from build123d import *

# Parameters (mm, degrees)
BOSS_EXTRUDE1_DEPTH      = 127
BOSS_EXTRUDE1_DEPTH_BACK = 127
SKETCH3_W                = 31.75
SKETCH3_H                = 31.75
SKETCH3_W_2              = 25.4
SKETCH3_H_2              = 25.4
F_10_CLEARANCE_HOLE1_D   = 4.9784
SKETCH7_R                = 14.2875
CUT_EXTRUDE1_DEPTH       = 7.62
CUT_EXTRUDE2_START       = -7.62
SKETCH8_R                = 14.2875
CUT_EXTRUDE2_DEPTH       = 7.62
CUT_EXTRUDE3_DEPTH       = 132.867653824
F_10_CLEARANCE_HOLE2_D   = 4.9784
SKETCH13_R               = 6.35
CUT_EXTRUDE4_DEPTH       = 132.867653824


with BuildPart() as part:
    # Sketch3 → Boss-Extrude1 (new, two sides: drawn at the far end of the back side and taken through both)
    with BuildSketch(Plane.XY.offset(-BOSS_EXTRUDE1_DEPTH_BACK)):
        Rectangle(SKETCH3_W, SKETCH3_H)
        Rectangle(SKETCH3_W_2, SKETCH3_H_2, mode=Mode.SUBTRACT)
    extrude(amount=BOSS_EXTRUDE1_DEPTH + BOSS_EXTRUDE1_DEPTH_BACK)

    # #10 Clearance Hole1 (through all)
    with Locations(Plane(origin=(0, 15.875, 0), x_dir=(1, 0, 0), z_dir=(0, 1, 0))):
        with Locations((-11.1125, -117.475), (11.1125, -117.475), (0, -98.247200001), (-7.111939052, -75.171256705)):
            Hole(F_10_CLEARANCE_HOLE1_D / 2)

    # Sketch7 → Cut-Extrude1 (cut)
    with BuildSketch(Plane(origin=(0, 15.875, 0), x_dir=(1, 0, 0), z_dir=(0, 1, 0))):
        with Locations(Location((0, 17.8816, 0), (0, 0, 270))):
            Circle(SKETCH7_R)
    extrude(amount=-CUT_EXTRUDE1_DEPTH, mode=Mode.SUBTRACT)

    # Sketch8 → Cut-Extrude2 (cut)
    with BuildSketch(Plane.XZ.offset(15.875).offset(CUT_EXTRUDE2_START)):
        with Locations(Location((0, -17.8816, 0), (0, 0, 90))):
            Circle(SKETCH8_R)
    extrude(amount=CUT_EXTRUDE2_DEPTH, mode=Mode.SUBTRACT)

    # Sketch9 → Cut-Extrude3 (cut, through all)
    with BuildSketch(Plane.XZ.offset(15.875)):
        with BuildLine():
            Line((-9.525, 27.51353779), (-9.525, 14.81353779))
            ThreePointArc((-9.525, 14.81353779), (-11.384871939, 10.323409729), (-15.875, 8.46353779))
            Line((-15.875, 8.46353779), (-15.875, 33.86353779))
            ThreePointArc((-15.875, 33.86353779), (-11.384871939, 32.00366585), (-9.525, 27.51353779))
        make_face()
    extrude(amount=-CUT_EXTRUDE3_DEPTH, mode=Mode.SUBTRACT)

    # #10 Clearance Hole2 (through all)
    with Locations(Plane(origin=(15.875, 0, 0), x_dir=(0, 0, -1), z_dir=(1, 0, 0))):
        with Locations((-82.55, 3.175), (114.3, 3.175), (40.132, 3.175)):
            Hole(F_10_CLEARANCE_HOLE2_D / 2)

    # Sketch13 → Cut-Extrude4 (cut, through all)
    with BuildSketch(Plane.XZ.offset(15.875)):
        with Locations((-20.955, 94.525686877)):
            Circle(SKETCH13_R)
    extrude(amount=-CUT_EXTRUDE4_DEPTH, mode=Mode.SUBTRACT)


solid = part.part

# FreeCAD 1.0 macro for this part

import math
import FreeCAD as App
import Part
import Sketcher
from FreeCAD import Vector
Q = App.Units.Quantity


def add_polygon(sketch, points):
    """Adds a closed chain of lines whose ends are joined by coincident constraints."""
    first, n = sketch.GeometryCount, len(points)
    for a, b in zip(points, points[1:] + points[:1]):
        sketch.addGeometry(Part.LineSegment(App.Vector(*a, 0), App.Vector(*b, 0)), False)
    for i in range(n):
        sketch.addConstraint(Sketcher.Constraint("Coincident", first + i, 2, first + (i + 1) % n, 1))

doc = App.newDocument("Part")
body = doc.addObject("PartDesign::Body", "Body")

sketch1 = body.newObject("Sketcher::SketchObject", "Sketch")
sketch1.AttachmentSupport = (doc.getObject("XY_Plane"), [""])
sketch1.MapMode = "FlatFace"
add_polygon(sketch1, [(-16, 16), (-16, -16), (16, -16), (16, 16)])
add_polygon(sketch1, [(13, -13), (-13, -13), (-13, 13), (13, 13)])
sketch1.addConstraint(Sketcher.Constraint("Vertical", 0))
sketch1.addConstraint(Sketcher.Constraint("Horizontal", 1))
sketch1.addConstraint(Sketcher.Constraint("Vertical", 2))
sketch1.addConstraint(Sketcher.Constraint("Horizontal", 3))
sketch1.addConstraint(Sketcher.Constraint("Horizontal", 4))
sketch1.addConstraint(Sketcher.Constraint("Vertical", 5))
sketch1.addConstraint(Sketcher.Constraint("Horizontal", 6))
sketch1.addConstraint(Sketcher.Constraint("Vertical", 7))
sketch1.addConstraint(Sketcher.Constraint("Symmetric", 0, 2, 2, 2, -1, 1))
sketch1.addConstraint(Sketcher.Constraint("Symmetric", 4, 2, 6, 2, -1, 1))
sketch1.addConstraint(Sketcher.Constraint("Equal", 3, 0))
sketch1.addConstraint(Sketcher.Constraint("Equal", 6, 5))
sketch1.addConstraint(Sketcher.Constraint("DistanceX", 4, 2, 4, 1, Q("1 in")))
sketch1.addConstraint(Sketcher.Constraint("DistanceX", 1, 1, 1, 2, Q("1.25 in")))
pad1 = body.newObject("PartDesign::Pad", "Pad")
pad1.Profile = sketch1
pad1.Type = "TwoLengths"
pad1.Length = Q("5 in")
pad1.Length2 = Q("5 in")

sketch2 = body.newObject("Sketcher::SketchObject", "Sketch001")
sketch2.AttachmentSupport = (doc.getObject("XZ_Plane"), [""])
sketch2.MapMode = "FlatFace"
sketch2.AttachmentOffset = App.Placement(Vector(0, 0, -0.625 * 25.4), App.Rotation())
sketch2.addGeometry(Part.Circle(Vector(-11.1, 117.5, 0), Vector(0, 0, 1), 2.5), False)
sketch2.addGeometry(Part.Circle(Vector(11.1, 117.5, 0), Vector(0, 0, 1), 2.5), False)
sketch2.addGeometry(Part.Circle(Vector(0, 98.2, 0), Vector(0, 0, 1), 2.5), False)
sketch2.addGeometry(Part.Circle(Vector(-7.1, 75.2, 0), Vector(0, 0, 1), 2.5), False)
sketch2.addConstraint(Sketcher.Constraint("Equal", 0, 1))
sketch2.addConstraint(Sketcher.Constraint("Equal", 1, 2))
sketch2.addConstraint(Sketcher.Constraint("Equal", 2, 3))
sketch2.addConstraint(Sketcher.Constraint("Symmetric", 0, 3, 1, 3, -2))
sketch2.addConstraint(Sketcher.Constraint("PointOnObject", 2, 3, -2))
sketch2.addConstraint(Sketcher.Constraint("Diameter", 0, Q("0.196 in")))
sketch2.addConstraint(Sketcher.Constraint("DistanceX", 0, 3, -1, 1, Q("0.4375 in")))
sketch2.addConstraint(Sketcher.Constraint("DistanceY", -1, 1, 0, 3, Q("4.625 in")))
sketch2.addConstraint(Sketcher.Constraint("DistanceY", -1, 1, 2, 3, Q("3.868 in")))
sketch2.addConstraint(Sketcher.Constraint("DistanceX", 3, 3, -1, 1, 7.111939))
sketch2.addConstraint(Sketcher.Constraint("DistanceY", -1, 1, 3, 3, 75.171257))
doc.recompute()
hole = body.newObject("PartDesign::Hole", "Hole")
hole.Profile = sketch2
hole.ThreadType = "None"
hole.Diameter = Q("0.196 in")
hole.DepthType = "ThroughAll"
hole.Reversed = True

sketch3 = body.newObject("Sketcher::SketchObject", "Sketch002")
sketch3.AttachmentSupport = (doc.getObject("XZ_Plane"), [""])
sketch3.MapMode = "FlatFace"
sketch3.AttachmentOffset = App.Placement(Vector(0, 0, -0.625 * 25.4), App.Rotation())
sketch3.addGeometry(Part.Circle(Vector(0, -18, 0), Vector(0, 0, 1), 14), False)
sketch3.addConstraint(Sketcher.Constraint("PointOnObject", 0, 3, -2))
sketch3.addConstraint(Sketcher.Constraint("Diameter", 0, Q("1.125 in")))
sketch3.addConstraint(Sketcher.Constraint("DistanceY", 0, 3, -1, 1, Q("0.704 in")))
pocket1 = body.newObject("PartDesign::Pocket", "Pocket")
pocket1.Profile = sketch3
pocket1.Length = Q("0.3 in")
pocket1.Reversed = True

sketch4 = body.newObject("Sketcher::SketchObject", "Sketch003")
sketch4.AttachmentSupport = (doc.getObject("XZ_Plane"), [""])
sketch4.MapMode = "FlatFace"
sketch4.AttachmentOffset = App.Placement(Vector(0, 0, 0.325 * 25.4), App.Rotation())
sketch4.addGeometry(Part.Circle(Vector(0, -18, 0), Vector(0, 0, 1), 14), False)
sketch4.addConstraint(Sketcher.Constraint("PointOnObject", 0, 3, -2))
sketch4.addConstraint(Sketcher.Constraint("Diameter", 0, Q("1.125 in")))
sketch4.addConstraint(Sketcher.Constraint("DistanceY", 0, 3, -1, 1, Q("0.704 in")))
pocket2 = body.newObject("PartDesign::Pocket", "Pocket001")
pocket2.Profile = sketch4
pocket2.Length = Q("0.3 in")
pocket2.Reversed = True

sketch5 = body.newObject("Sketcher::SketchObject", "Sketch004")
sketch5.AttachmentSupport = (doc.getObject("XZ_Plane"), [""])
sketch5.MapMode = "FlatFace"
sketch5.AttachmentOffset = App.Placement(Vector(0, 0, 0.625 * 25.4), App.Rotation())
sketch5.addGeometry(Part.LineSegment(Vector(-10, 15, 0), Vector(-10, 28, 0)), False)
sketch5.addGeometry(Part.ArcOfCircle(Part.Circle(Vector(-16, 28, 0), Vector(0, 0, 1), 6), math.radians(0), math.radians(90)), False)
sketch5.addGeometry(Part.LineSegment(Vector(-16, 34, 0), Vector(-16, 8, 0)), False)
sketch5.addGeometry(Part.ArcOfCircle(Part.Circle(Vector(-16, 15, 0), Vector(0, 0, 1), 6), math.radians(-90), math.radians(0)), False)
sketch5.addConstraint(Sketcher.Constraint("Tangent", 0, 2, 1, 1))
sketch5.addConstraint(Sketcher.Constraint("Coincident", 1, 2, 2, 1))
sketch5.addConstraint(Sketcher.Constraint("Coincident", 2, 2, 3, 1))
sketch5.addConstraint(Sketcher.Constraint("Tangent", 3, 2, 0, 1))
sketch5.addConstraint(Sketcher.Constraint("Vertical", 0))
sketch5.addConstraint(Sketcher.Constraint("Vertical", 2))
sketch5.addConstraint(Sketcher.Constraint("Equal", 1, 3))
sketch5.addConstraint(Sketcher.Constraint("Vertical", 3, 3, 1, 2))
sketch5.addConstraint(Sketcher.Constraint("DistanceY", 2, 2, 2, 1, Q("1 in")))
sketch5.addConstraint(Sketcher.Constraint("Radius", 1, Q("0.25 in")))
sketch5.addConstraint(Sketcher.Constraint("DistanceX", 1, 3, -1, 1, Q("0.625 in")))
sketch5.addConstraint(Sketcher.Constraint("DistanceY", -1, 1, 1, 3, 27.513538))
pocket3 = body.newObject("PartDesign::Pocket", "Pocket002")
pocket3.Profile = sketch5
pocket3.Type = "ThroughAll"

sketch6 = body.newObject("Sketcher::SketchObject", "Sketch005")
sketch6.AttachmentSupport = (doc.getObject("YZ_Plane"), [""])
sketch6.MapMode = "FlatFace"
sketch6.AttachmentOffset = App.Placement(Vector(0, 0, 0.625 * 25.4), App.Rotation())
sketch6.addGeometry(Part.Circle(Vector(3.2, 82.5, 0), Vector(0, 0, 1), 2.5), False)
sketch6.addGeometry(Part.Circle(Vector(3.2, -114.3, 0), Vector(0, 0, 1), 2.5), False)
sketch6.addGeometry(Part.Circle(Vector(3.2, -40.1, 0), Vector(0, 0, 1), 2.5), False)
sketch6.addConstraint(Sketcher.Constraint("Equal", 0, 1))
sketch6.addConstraint(Sketcher.Constraint("Equal", 1, 2))
sketch6.addConstraint(Sketcher.Constraint("Vertical", 0, 3, 1, 3))
sketch6.addConstraint(Sketcher.Constraint("Vertical", 1, 3, 2, 3))
sketch6.addConstraint(Sketcher.Constraint("Diameter", 0, Q("0.196 in")))
sketch6.addConstraint(Sketcher.Constraint("DistanceY", 1, 3, -1, 1, Q("4.5 in")))
sketch6.addConstraint(Sketcher.Constraint("DistanceY", -1, 1, 0, 3, Q("3.25 in")))
sketch6.addConstraint(Sketcher.Constraint("DistanceY", 2, 3, -1, 1, Q("1.58 in")))
sketch6.addConstraint(Sketcher.Constraint("DistanceX", -1, 1, 0, 3, Q("0.125 in")))
doc.recompute()
hole2 = body.newObject("PartDesign::Hole", "Hole001")
hole2.Profile = sketch6
hole2.ThreadType = "None"
hole2.Diameter = Q("0.196 in")
hole2.DepthType = "ThroughAll"

sketch7 = body.newObject("Sketcher::SketchObject", "Sketch006")
sketch7.AttachmentSupport = (doc.getObject("XZ_Plane"), [""])
sketch7.MapMode = "FlatFace"
sketch7.AttachmentOffset = App.Placement(Vector(0, 0, 0.625 * 25.4), App.Rotation())
sketch7.addGeometry(Part.Circle(Vector(-21, 95, 0), Vector(0, 0, 1), 6), False)
sketch7.addConstraint(Sketcher.Constraint("Diameter", 0, Q("0.5 in")))
sketch7.addConstraint(Sketcher.Constraint("DistanceX", 0, 3, -1, 1, Q("0.825 in")))
sketch7.addConstraint(Sketcher.Constraint("DistanceY", -1, 1, 0, 3, 94.525687))
pocket4 = body.newObject("PartDesign::Pocket", "Pocket003")
pocket4.Profile = sketch7
pocket4.Type = "ThroughAll"

doc.recompute()
